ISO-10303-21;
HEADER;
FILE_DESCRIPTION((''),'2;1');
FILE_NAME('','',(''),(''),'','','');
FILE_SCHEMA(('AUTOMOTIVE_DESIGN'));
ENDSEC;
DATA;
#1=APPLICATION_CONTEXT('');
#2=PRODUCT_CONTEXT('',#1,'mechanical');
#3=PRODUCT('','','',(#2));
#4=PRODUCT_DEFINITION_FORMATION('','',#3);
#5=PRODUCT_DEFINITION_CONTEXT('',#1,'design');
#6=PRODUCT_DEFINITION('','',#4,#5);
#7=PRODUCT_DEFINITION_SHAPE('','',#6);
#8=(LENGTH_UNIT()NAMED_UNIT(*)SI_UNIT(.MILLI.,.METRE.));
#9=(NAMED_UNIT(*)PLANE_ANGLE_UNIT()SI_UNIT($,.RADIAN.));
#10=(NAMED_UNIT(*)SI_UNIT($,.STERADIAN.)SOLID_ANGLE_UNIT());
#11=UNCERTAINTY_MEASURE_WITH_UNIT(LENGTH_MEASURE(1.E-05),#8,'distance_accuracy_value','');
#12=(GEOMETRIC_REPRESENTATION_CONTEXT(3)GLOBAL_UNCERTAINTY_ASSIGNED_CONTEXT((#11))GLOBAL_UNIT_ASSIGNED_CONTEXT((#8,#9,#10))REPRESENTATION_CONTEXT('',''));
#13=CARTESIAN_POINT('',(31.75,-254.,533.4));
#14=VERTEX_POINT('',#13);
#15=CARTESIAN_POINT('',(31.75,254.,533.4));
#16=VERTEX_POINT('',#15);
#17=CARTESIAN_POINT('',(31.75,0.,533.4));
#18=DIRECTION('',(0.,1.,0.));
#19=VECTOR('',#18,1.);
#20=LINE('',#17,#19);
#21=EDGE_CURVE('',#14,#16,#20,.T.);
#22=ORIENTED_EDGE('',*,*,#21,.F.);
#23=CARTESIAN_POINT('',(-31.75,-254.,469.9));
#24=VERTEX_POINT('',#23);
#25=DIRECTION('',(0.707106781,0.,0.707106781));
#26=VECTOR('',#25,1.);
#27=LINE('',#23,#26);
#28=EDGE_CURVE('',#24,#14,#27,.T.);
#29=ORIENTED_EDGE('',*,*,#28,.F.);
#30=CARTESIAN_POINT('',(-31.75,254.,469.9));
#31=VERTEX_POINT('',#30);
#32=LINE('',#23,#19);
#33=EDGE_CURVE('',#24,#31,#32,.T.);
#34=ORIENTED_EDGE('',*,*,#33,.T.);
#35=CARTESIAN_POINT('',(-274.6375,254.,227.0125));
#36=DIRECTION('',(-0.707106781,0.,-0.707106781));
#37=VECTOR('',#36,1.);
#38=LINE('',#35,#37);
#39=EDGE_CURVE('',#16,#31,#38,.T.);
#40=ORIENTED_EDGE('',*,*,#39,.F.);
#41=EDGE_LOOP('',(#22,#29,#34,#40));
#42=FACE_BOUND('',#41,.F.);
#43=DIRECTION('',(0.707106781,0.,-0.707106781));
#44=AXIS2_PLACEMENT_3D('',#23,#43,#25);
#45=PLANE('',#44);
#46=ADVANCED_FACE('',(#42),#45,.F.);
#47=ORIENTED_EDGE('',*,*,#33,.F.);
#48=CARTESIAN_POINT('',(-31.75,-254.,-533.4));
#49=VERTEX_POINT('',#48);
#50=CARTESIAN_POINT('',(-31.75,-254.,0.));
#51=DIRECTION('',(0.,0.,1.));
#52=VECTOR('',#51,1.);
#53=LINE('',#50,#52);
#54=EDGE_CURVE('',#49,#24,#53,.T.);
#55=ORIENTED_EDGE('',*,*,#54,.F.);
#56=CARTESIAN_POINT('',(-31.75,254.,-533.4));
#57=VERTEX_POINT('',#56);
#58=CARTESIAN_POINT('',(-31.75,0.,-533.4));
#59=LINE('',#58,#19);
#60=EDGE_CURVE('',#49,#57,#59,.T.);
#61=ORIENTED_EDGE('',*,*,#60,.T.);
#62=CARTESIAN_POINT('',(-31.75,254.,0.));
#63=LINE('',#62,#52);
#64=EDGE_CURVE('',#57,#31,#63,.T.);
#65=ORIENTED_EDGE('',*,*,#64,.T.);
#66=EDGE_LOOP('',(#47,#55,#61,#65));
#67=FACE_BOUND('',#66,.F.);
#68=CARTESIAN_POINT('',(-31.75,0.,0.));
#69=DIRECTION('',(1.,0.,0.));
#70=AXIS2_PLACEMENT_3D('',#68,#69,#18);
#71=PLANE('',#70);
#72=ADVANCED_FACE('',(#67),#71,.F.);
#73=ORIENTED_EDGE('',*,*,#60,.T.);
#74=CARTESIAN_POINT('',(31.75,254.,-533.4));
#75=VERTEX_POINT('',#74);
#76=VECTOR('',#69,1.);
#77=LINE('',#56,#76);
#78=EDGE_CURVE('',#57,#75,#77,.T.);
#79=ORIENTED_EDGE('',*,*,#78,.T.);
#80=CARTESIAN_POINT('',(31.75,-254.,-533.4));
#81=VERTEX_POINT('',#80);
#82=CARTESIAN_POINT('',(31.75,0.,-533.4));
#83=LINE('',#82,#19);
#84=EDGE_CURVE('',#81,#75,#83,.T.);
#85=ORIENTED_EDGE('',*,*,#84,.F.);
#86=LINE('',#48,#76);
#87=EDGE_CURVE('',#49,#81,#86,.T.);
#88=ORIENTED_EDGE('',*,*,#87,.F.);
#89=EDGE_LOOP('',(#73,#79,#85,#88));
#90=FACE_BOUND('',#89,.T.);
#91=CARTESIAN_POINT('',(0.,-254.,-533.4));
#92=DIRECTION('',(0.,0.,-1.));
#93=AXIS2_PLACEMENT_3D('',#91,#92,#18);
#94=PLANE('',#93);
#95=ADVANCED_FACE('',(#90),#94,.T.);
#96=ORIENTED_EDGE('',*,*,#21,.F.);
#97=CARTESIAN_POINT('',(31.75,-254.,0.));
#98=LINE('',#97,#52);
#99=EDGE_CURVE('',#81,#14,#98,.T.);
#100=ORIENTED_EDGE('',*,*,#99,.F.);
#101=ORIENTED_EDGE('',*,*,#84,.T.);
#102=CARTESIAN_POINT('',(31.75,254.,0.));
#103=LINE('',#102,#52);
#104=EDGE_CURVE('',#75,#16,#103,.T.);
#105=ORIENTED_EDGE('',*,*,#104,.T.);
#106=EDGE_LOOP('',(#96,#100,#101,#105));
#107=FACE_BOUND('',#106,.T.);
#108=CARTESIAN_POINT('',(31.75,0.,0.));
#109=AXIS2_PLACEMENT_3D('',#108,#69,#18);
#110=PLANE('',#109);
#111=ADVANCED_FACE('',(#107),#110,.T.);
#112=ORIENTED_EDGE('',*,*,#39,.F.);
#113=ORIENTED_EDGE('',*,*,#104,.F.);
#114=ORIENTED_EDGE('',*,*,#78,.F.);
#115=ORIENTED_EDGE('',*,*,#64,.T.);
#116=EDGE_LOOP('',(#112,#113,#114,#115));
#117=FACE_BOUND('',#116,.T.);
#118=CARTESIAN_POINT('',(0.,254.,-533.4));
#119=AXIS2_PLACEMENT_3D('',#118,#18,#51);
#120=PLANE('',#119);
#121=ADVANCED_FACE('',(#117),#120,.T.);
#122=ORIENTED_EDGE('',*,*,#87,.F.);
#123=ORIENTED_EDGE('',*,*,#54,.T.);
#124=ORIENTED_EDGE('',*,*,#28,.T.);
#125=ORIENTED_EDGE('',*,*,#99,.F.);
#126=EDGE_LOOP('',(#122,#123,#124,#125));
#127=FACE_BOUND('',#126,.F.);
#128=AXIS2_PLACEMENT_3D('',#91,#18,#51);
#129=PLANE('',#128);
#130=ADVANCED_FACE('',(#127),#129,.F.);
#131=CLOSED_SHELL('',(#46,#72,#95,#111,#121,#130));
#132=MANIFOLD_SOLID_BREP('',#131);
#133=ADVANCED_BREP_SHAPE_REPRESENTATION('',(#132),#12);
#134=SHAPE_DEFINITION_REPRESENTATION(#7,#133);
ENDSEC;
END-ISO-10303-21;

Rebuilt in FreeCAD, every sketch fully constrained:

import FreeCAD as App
import Part
import Sketcher

V = App.Vector
Q = App.Units.Quantity


def add_polygon(sketch, points):
    """Adds a closed chain of lines whose ends are joined by coincident constraints."""
    first, n = sketch.GeometryCount, len(points)
    for a, b in zip(points, points[1:] + points[:1]):
        sketch.addGeometry(Part.LineSegment(App.Vector(*a, 0), App.Vector(*b, 0)), False)
    for i in range(n):
        sketch.addConstraint(Sketcher.Constraint("Coincident", first + i, 2, first + (i + 1) % n, 1))

doc = App.newDocument("Part")
body = doc.addObject("PartDesign::Body", "Body")

# Sketch on YZ plane
sketch1 = doc.addObject("Sketcher::SketchObject", "Sketch")
body.addObject(sketch1)
sketch1.AttachmentSupport = (doc.YZ_Plane, [""])
sketch1.MapMode = "FlatFace"
add_polygon(sketch1, [(-254, 533), (-254, -533), (254, -533), (254, 533)])  # lines 0-3
sketch1.addConstraint(Sketcher.Constraint("Vertical", 0))
sketch1.addConstraint(Sketcher.Constraint("Horizontal", 1))
sketch1.addConstraint(Sketcher.Constraint("Vertical", 2))
sketch1.addConstraint(Sketcher.Constraint("Horizontal", 3))
sketch1.addConstraint(Sketcher.Constraint("Symmetric", 0, 2, 2, 2, -1, 1))
sketch1.addConstraint(Sketcher.Constraint("DistanceX", 1, 1, 1, 2, Q("20 in")))
sketch1.addConstraint(Sketcher.Constraint("DistanceY", 0, 2, 0, 1, Q("42 in")))
pad1 = doc.addObject("PartDesign::Pad", "Pad")
body.addObject(pad1)
pad1.Profile = sketch1
pad1.Length = Q("2.5 in")
pad1.Midplane = True

# Sketch on XZ plane
sketch2 = doc.addObject("Sketcher::SketchObject", "Sketch001")
body.addObject(sketch2)
sketch2.AttachmentSupport = (doc.XZ_Plane, [""])
sketch2.MapMode = "FlatFace"
sketch2.AttachmentOffset = App.Placement(V(0, 0, 10 * 25.4), App.Rotation())
add_polygon(sketch2, [(-32, 470), (32, 533), (-32, 533)])  # lines 0-2
sketch2.addConstraint(Sketcher.Constraint("Horizontal", 1))
sketch2.addConstraint(Sketcher.Constraint("Vertical", 2))
sketch2.addConstraint(Sketcher.Constraint("Equal", 1, 2))
sketch2.addConstraint(Sketcher.Constraint("DistanceX", 1, 2, 1, 1, Q("2.5 in")))
sketch2.addConstraint(Sketcher.Constraint("DistanceY", -1, 1, 0, 2, Q("21 in")))
sketch2.addConstraint(Sketcher.Constraint("DistanceX", -1, 1, 0, 2, Q("1.25 in")))
pocket1 = doc.addObject("PartDesign::Pocket", "Pocket")
body.addObject(pocket1)
pocket1.Profile = sketch2
pocket1.Type = "ThroughAll"

doc.recompute()
